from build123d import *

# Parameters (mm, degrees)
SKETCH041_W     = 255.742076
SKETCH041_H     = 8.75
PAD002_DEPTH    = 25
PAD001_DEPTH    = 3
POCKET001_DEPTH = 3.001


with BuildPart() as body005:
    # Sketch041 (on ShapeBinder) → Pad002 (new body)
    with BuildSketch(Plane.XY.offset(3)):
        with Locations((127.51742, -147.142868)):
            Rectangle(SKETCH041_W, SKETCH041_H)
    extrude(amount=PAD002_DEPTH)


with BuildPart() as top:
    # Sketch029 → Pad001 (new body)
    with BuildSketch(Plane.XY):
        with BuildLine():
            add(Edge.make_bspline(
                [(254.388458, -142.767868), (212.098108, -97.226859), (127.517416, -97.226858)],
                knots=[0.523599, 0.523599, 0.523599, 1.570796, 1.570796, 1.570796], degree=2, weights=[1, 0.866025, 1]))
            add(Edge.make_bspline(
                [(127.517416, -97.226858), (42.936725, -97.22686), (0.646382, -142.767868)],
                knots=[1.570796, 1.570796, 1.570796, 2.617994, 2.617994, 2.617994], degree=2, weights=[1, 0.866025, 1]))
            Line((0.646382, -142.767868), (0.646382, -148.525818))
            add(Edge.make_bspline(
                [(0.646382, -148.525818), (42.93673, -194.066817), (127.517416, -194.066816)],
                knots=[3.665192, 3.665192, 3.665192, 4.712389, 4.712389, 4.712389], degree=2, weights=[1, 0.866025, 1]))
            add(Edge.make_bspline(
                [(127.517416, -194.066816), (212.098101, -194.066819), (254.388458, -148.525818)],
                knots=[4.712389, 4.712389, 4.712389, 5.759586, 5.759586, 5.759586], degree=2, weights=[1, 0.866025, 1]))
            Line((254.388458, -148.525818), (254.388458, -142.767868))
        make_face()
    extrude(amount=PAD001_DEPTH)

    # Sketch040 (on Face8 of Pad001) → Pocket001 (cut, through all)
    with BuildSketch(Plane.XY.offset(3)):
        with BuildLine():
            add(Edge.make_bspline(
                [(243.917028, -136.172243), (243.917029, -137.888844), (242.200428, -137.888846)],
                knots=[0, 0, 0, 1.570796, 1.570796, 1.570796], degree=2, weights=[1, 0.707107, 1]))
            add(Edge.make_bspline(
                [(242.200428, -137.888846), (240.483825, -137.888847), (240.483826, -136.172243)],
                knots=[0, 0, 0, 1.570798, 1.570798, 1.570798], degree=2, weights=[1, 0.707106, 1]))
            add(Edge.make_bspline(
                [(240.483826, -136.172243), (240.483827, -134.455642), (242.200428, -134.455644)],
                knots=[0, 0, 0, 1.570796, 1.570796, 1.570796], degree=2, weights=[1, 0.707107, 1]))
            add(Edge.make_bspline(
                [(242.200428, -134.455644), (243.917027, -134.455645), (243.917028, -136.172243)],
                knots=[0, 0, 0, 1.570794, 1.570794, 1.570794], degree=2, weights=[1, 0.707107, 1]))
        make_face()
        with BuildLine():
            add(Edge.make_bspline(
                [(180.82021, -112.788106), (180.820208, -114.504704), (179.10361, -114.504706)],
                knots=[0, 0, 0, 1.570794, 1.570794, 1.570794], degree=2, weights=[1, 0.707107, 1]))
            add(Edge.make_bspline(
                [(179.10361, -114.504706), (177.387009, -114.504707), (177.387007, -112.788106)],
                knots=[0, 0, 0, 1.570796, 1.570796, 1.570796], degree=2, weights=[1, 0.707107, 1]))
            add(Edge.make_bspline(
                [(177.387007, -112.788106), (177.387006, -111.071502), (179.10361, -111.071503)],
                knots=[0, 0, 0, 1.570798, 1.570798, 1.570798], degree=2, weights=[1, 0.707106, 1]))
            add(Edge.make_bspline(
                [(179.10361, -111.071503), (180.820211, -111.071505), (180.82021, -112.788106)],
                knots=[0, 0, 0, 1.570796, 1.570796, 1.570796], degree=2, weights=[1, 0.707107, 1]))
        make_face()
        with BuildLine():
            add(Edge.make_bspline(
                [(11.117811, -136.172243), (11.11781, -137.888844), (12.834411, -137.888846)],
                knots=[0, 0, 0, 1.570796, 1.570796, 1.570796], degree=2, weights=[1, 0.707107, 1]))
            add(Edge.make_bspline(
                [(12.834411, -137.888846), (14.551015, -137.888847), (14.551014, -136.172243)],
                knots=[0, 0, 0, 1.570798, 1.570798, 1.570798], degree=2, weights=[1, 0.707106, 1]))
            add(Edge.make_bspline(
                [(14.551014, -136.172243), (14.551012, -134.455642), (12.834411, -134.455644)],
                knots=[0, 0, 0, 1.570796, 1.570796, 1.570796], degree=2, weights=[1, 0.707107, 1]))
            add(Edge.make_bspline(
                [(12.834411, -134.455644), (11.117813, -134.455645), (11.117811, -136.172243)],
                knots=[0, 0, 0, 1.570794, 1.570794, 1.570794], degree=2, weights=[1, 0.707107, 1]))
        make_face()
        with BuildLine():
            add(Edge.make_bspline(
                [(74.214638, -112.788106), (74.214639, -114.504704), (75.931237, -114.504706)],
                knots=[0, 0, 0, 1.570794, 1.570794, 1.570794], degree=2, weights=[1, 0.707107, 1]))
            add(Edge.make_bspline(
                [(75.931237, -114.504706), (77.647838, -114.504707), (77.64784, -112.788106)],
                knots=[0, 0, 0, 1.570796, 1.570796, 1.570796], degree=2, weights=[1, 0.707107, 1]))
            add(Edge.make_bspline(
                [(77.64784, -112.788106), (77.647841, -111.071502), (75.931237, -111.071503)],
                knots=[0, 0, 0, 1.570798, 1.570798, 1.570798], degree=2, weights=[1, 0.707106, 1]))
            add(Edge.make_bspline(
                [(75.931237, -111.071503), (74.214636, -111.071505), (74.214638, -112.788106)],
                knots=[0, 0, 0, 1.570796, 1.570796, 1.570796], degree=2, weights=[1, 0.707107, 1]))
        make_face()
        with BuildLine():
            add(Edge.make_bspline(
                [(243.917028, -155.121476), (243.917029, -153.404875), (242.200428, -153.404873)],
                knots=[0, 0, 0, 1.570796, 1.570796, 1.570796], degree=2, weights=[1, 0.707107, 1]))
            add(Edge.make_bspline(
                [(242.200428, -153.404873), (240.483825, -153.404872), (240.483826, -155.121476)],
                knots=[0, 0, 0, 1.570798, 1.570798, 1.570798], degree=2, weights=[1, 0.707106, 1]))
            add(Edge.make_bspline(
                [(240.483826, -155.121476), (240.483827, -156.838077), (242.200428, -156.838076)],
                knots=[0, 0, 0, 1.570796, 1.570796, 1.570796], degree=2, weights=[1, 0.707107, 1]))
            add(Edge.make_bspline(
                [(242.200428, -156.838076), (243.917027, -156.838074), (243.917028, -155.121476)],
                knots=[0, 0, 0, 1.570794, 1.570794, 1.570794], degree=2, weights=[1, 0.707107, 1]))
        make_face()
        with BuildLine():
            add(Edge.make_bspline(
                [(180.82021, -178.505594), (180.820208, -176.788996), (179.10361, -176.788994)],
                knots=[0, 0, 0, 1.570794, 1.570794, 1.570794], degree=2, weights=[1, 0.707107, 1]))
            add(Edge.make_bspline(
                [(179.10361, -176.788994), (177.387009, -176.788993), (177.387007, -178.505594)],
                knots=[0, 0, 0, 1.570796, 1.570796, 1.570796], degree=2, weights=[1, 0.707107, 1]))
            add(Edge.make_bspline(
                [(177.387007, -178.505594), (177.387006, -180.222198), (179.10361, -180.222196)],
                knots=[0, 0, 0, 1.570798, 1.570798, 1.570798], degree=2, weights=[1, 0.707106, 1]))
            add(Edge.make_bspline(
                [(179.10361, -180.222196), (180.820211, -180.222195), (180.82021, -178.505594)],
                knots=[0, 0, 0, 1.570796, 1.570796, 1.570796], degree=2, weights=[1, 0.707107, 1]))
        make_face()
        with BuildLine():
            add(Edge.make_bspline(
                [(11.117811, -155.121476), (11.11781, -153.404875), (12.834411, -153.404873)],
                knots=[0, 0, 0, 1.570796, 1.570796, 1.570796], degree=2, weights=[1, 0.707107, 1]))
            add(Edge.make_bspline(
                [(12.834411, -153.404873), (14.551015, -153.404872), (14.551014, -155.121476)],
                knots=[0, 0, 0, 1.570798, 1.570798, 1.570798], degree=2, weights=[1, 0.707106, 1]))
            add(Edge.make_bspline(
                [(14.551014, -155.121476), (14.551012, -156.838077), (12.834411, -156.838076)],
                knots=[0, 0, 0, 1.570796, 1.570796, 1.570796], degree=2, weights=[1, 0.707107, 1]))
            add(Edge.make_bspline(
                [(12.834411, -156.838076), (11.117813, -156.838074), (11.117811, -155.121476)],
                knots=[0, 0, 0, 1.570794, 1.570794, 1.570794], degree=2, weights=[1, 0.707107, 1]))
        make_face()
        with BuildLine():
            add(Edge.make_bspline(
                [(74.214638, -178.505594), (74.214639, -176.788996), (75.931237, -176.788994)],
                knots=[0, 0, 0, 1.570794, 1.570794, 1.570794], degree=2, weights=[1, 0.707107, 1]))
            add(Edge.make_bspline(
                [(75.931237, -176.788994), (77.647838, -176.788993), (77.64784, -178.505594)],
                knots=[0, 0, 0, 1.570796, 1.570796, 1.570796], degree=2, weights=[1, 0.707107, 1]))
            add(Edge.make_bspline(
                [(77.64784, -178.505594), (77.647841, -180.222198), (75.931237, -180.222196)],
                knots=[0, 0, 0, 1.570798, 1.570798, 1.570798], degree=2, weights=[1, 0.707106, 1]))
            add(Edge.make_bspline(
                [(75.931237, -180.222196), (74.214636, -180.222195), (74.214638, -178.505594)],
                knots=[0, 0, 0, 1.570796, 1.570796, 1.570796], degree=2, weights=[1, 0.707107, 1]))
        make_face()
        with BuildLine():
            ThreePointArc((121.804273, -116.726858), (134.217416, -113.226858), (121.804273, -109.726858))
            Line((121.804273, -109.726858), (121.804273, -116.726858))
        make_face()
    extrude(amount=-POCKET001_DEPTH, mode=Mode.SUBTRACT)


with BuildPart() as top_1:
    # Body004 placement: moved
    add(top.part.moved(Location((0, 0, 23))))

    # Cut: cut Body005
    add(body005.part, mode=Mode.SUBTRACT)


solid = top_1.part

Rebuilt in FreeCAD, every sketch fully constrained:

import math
import FreeCAD as App
import Part
import Sketcher

doc = App.newDocument("Part")
body = doc.addObject("PartDesign::Body", "Body")

# Sketch on XY plane
sketch1 = body.newObject("Sketcher::SketchObject", "Sketch")
sketch1.AttachmentSupport = (doc.getObject("XY_Plane"), [""])
sketch1.MapMode = "FlatFace"
sketch1.AttachmentOffset = App.Placement(App.Vector(0, 0, 3), App.Rotation())
sketch1.addGeometry([
    Part.LineSegment(App.Vector(-0.353618, -142.767868, 0), App.Vector(-0.353618, -151.517868, 0)),
    Part.LineSegment(App.Vector(-0.353618, -151.517868, 0), App.Vector(255.388458, -151.517868, 0)),
    Part.LineSegment(App.Vector(255.388458, -151.517868, 0), App.Vector(255.388458, -142.767868, 0)),
    Part.LineSegment(App.Vector(255.388458, -142.767868, 0), App.Vector(-0.353618, -142.767868, 0)),
], False)
sketch1.addConstraint([
    Sketcher.Constraint("Coincident", 0, 2, 1, 1),
    Sketcher.Constraint("Coincident", 1, 2, 2, 1),
    Sketcher.Constraint("Coincident", 2, 2, 3, 1),
    Sketcher.Constraint("Coincident", 3, 2, 0, 1),
    Sketcher.Constraint("Vertical", 0),
    Sketcher.Constraint("Horizontal", 1),
    Sketcher.Constraint("Vertical", 2),
    Sketcher.Constraint("Horizontal", 3),
    Sketcher.Constraint("DistanceY", 0, 2, 0, 1, 8.75),
    Sketcher.Constraint("DistanceX", 1, 1, 1, 2, 255.742076),
    Sketcher.Constraint("DistanceY", 0, 2, -1, 1, 151.517868),
    Sketcher.Constraint("DistanceX", -1, 1, 1, 2, 255.388458),
])
pad1 = body.newObject("PartDesign::Pad", "Pad")
pad1.Profile = sketch1
pad1.Length = 25
body2 = doc.addObject("PartDesign::Body", "Body001")

# Sketch on XY plane
sketch2 = body2.newObject("Sketcher::SketchObject", "Sketch001")
sketch2.AttachmentSupport = (doc.getObject("XY_Plane001"), [""])
sketch2.MapMode = "FlatFace"
sketch2.addGeometry([
    Part.BSplineCurve([App.Vector(254.388458, -142.767868, 0), App.Vector(212.098108, -97.226859, 0), App.Vector(127.517416, -97.226858, 0)], [3, 3], [0.523599, 1.570796], False, 2, [1, 0.866025, 1], False),  # 0
    Part.BSplineCurve([App.Vector(127.517416, -97.226858, 0), App.Vector(42.936725, -97.22686, 0), App.Vector(0.646382, -142.767868, 0)], [3, 3], [1.570796, 2.617994], False, 2, [1, 0.866025, 1], False),  # 1
    Part.LineSegment(App.Vector(0.646382, -142.767868, 0), App.Vector(0.646382, -148.525818, 0)),  # 2
    Part.BSplineCurve([App.Vector(0.646382, -148.525818, 0), App.Vector(42.93673, -194.066817, 0), App.Vector(127.517416, -194.066816, 0)], [3, 3], [3.665192, 4.712389], False, 2, [1, 0.866025, 1], False),  # 3
    Part.BSplineCurve([App.Vector(127.517416, -194.066816, 0), App.Vector(212.098101, -194.066819, 0), App.Vector(254.388458, -148.525818, 0)], [3, 3], [4.712389, 5.759586], False, 2, [1, 0.866025, 1], False),  # 4
    Part.LineSegment(App.Vector(254.388458, -148.525818, 0), App.Vector(254.388458, -142.767868, 0)),  # 5
], False)
sketch2.addConstraint([
    Sketcher.Constraint("Block", 0),
    Sketcher.Constraint("Block", 1),
    Sketcher.Constraint("Block", 3),
    Sketcher.Constraint("Block", 4),
    Sketcher.Constraint("Coincident", 1, 2, 2, 1),
    Sketcher.Constraint("Coincident", 2, 2, 3, 1),
    Sketcher.Constraint("Coincident", 4, 2, 5, 1),
    Sketcher.Constraint("Coincident", 5, 2, 0, 1),
])
pad2 = body2.newObject("PartDesign::Pad", "Pad001")
pad2.Profile = sketch2
pad2.Length = 3

# Sketch on XY plane
sketch3 = body2.newObject("Sketcher::SketchObject", "Sketch002")
sketch3.AttachmentSupport = (doc.getObject("XY_Plane001"), [""])
sketch3.MapMode = "FlatFace"
sketch3.AttachmentOffset = App.Placement(App.Vector(0, 0, 3), App.Rotation())
sketch3.addGeometry([
    Part.BSplineCurve([App.Vector(243.917028, -136.172243, 0), App.Vector(243.917029, -137.888844, 0), App.Vector(242.200428, -137.888846, 0)], [3, 3], [0, 1.570796], False, 2, [1, 0.707107, 1], False),  # 0
    Part.BSplineCurve([App.Vector(242.200428, -134.455644, 0), App.Vector(243.917027, -134.455645, 0), App.Vector(243.917028, -136.172243, 0)], [3, 3], [0, 1.570794], False, 2, [1, 0.707107, 1], False),  # 1
    Part.BSplineCurve([App.Vector(240.483826, -136.172243, 0), App.Vector(240.483827, -134.455642, 0), App.Vector(242.200428, -134.455644, 0)], [3, 3], [0, 1.570796], False, 2, [1, 0.707107, 1], False),  # 2
    Part.BSplineCurve([App.Vector(242.200428, -137.888846, 0), App.Vector(240.483825, -137.888847, 0), App.Vector(240.483826, -136.172243, 0)], [3, 3], [0, 1.570798], False, 2, [1, 0.707106, 1], False),  # 3
    Part.BSplineCurve([App.Vector(180.82021, -112.788106, 0), App.Vector(180.820208, -114.504704, 0), App.Vector(179.10361, -114.504706, 0)], [3, 3], [0, 1.570794], False, 2, [1, 0.707107, 1], False),  # 4
    Part.BSplineCurve([App.Vector(179.10361, -111.071503, 0), App.Vector(180.820211, -111.071505, 0), App.Vector(180.82021, -112.788106, 0)], [3, 3], [0, 1.570796], False, 2, [1, 0.707107, 1], False),  # 5
    Part.BSplineCurve([App.Vector(177.387007, -112.788106, 0), App.Vector(177.387006, -111.071502, 0), App.Vector(179.10361, -111.071503, 0)], [3, 3], [0, 1.570798], False, 2, [1, 0.707106, 1], False),  # 6
    Part.BSplineCurve([App.Vector(179.10361, -114.504706, 0), App.Vector(177.387009, -114.504707, 0), App.Vector(177.387007, -112.788106, 0)], [3, 3], [0, 1.570796], False, 2, [1, 0.707107, 1], False),  # 7
    Part.BSplineCurve([App.Vector(11.117811, -136.172243, 0), App.Vector(11.11781, -137.888844, 0), App.Vector(12.834411, -137.888846, 0)], [3, 3], [0, 1.570796], False, 2, [1, 0.707107, 1], False),  # 8
    Part.BSplineCurve([App.Vector(12.834411, -137.888846, 0), App.Vector(14.551015, -137.888847, 0), App.Vector(14.551014, -136.172243, 0)], [3, 3], [0, 1.570798], False, 2, [1, 0.707106, 1], False),  # 9
    Part.BSplineCurve([App.Vector(14.551014, -136.172243, 0), App.Vector(14.551012, -134.455642, 0), App.Vector(12.834411, -134.455644, 0)], [3, 3], [0, 1.570796], False, 2, [1, 0.707107, 1], False),  # 10
    Part.BSplineCurve([App.Vector(12.834411, -134.455644, 0), App.Vector(11.117813, -134.455645, 0), App.Vector(11.117811, -136.172243, 0)], [3, 3], [0, 1.570794], False, 2, [1, 0.707107, 1], False),  # 11
    Part.BSplineCurve([App.Vector(74.214638, -112.788106, 0), App.Vector(74.214639, -114.504704, 0), App.Vector(75.931237, -114.504706, 0)], [3, 3], [0, 1.570794], False, 2, [1, 0.707107, 1], False),  # 12
    Part.BSplineCurve([App.Vector(75.931237, -114.504706, 0), App.Vector(77.647838, -114.504707, 0), App.Vector(77.64784, -112.788106, 0)], [3, 3], [0, 1.570796], False, 2, [1, 0.707107, 1], False),  # 13
    Part.BSplineCurve([App.Vector(77.64784, -112.788106, 0), App.Vector(77.647841, -111.071502, 0), App.Vector(75.931237, -111.071503, 0)], [3, 3], [0, 1.570798], False, 2, [1, 0.707106, 1], False),  # 14
    Part.BSplineCurve([App.Vector(75.931237, -111.071503, 0), App.Vector(74.214636, -111.071505, 0), App.Vector(74.214638, -112.788106, 0)], [3, 3], [0, 1.570796], False, 2, [1, 0.707107, 1], False),  # 15
    Part.BSplineCurve([App.Vector(243.917028, -155.121476, 0), App.Vector(243.917029, -153.404875, 0), App.Vector(242.200428, -153.404873, 0)], [3, 3], [0, 1.570796], False, 2, [1, 0.707107, 1], False),  # 16
    Part.BSplineCurve([App.Vector(242.200428, -153.404873, 0), App.Vector(240.483825, -153.404872, 0), App.Vector(240.483826, -155.121476, 0)], [3, 3], [0, 1.570798], False, 2, [1, 0.707106, 1], False),  # 17
    Part.BSplineCurve([App.Vector(240.483826, -155.121476, 0), App.Vector(240.483827, -156.838077, 0), App.Vector(242.200428, -156.838076, 0)], [3, 3], [0, 1.570796], False, 2, [1, 0.707107, 1], False),  # 18
    Part.BSplineCurve([App.Vector(242.200428, -156.838076, 0), App.Vector(243.917027, -156.838074, 0), App.Vector(243.917028, -155.121476, 0)], [3, 3], [0, 1.570794], False, 2, [1, 0.707107, 1], False),  # 19
    Part.BSplineCurve([App.Vector(180.82021, -178.505594, 0), App.Vector(180.820208, -176.788996, 0), App.Vector(179.10361, -176.788994, 0)], [3, 3], [0, 1.570794], False, 2, [1, 0.707107, 1], False),  # 20
    Part.BSplineCurve([App.Vector(179.10361, -176.788994, 0), App.Vector(177.387009, -176.788993, 0), App.Vector(177.387007, -178.505594, 0)], [3, 3], [0, 1.570796], False, 2, [1, 0.707107, 1], False),  # 21
    Part.BSplineCurve([App.Vector(177.387007, -178.505594, 0), App.Vector(177.387006, -180.222198, 0), App.Vector(179.10361, -180.222196, 0)], [3, 3], [0, 1.570798], False, 2, [1, 0.707106, 1], False),  # 22
    Part.BSplineCurve([App.Vector(179.10361, -180.222196, 0), App.Vector(180.820211, -180.222195, 0), App.Vector(180.82021, -178.505594, 0)], [3, 3], [0, 1.570796], False, 2, [1, 0.707107, 1], False),  # 23
    Part.BSplineCurve([App.Vector(11.117811, -155.121476, 0), App.Vector(11.11781, -153.404875, 0), App.Vector(12.834411, -153.404873, 0)], [3, 3], [0, 1.570796], False, 2, [1, 0.707107, 1], False),  # 24
    Part.BSplineCurve([App.Vector(12.834411, -156.838076, 0), App.Vector(11.117813, -156.838074, 0), App.Vector(11.117811, -155.121476, 0)], [3, 3], [0, 1.570794], False, 2, [1, 0.707107, 1], False),  # 25
    Part.BSplineCurve([App.Vector(14.551014, -155.121476, 0), App.Vector(14.551012, -156.838077, 0), App.Vector(12.834411, -156.838076, 0)], [3, 3], [0, 1.570796], False, 2, [1, 0.707107, 1], False),  # 26
    Part.BSplineCurve([App.Vector(12.834411, -153.404873, 0), App.Vector(14.551015, -153.404872, 0), App.Vector(14.551014, -155.121476, 0)], [3, 3], [0, 1.570798], False, 2, [1, 0.707106, 1], False),  # 27
    Part.BSplineCurve([App.Vector(74.214638, -178.505594, 0), App.Vector(74.214639, -176.788996, 0), App.Vector(75.931237, -176.788994, 0)], [3, 3], [0, 1.570794], False, 2, [1, 0.707107, 1], False),  # 28
    Part.BSplineCurve([App.Vector(75.931237, -180.222196, 0), App.Vector(74.214636, -180.222195, 0), App.Vector(74.214638, -178.505594, 0)], [3, 3], [0, 1.570796], False, 2, [1, 0.707107, 1], False),  # 29
    Part.BSplineCurve([App.Vector(77.64784, -178.505594, 0), App.Vector(77.647841, -180.222198, 0), App.Vector(75.931237, -180.222196, 0)], [3, 3], [0, 1.570798], False, 2, [1, 0.707106, 1], False),  # 30
    Part.BSplineCurve([App.Vector(75.931237, -176.788994, 0), App.Vector(77.647838, -176.788993, 0), App.Vector(77.64784, -178.505594, 0)], [3, 3], [0, 1.570796], False, 2, [1, 0.707107, 1], False),  # 31
    Part.ArcOfCircle(Part.Circle(App.Vector(127.517416, -113.226858, 0), App.Vector(0, 0, 1), 6.7), math.radians(-148.507426), math.radians(148.507426)),  # 32
    Part.LineSegment(App.Vector(121.804273, -109.726858, 0), App.Vector(121.804273, -116.726858, 0)),  # 33
], False)
sketch3.addConstraint([
    Sketcher.Constraint("Block", 0),
    Sketcher.Constraint("Block", 1),
    Sketcher.Constraint("Block", 2),
    Sketcher.Constraint("Block", 3),
    Sketcher.Constraint("Block", 4),
    Sketcher.Constraint("Block", 5),
    Sketcher.Constraint("Block", 6),
    Sketcher.Constraint("Block", 7),
    Sketcher.Constraint("Block", 8),
    Sketcher.Constraint("Block", 9),
    Sketcher.Constraint("Block", 10),
    Sketcher.Constraint("Block", 11),
    Sketcher.Constraint("Block", 12),
    Sketcher.Constraint("Block", 13),
    Sketcher.Constraint("Block", 14),
    Sketcher.Constraint("Block", 15),
    Sketcher.Constraint("Block", 16),
    Sketcher.Constraint("Block", 17),
    Sketcher.Constraint("Block", 18),
    Sketcher.Constraint("Block", 19),
    Sketcher.Constraint("Block", 20),
    Sketcher.Constraint("Block", 21),
    Sketcher.Constraint("Block", 22),
    Sketcher.Constraint("Block", 23),
    Sketcher.Constraint("Block", 24),
    Sketcher.Constraint("Block", 25),
    Sketcher.Constraint("Block", 26),
    Sketcher.Constraint("Block", 27),
    Sketcher.Constraint("Block", 28),
    Sketcher.Constraint("Block", 29),
    Sketcher.Constraint("Block", 30),
    Sketcher.Constraint("Block", 31),
    Sketcher.Constraint("Coincident", 32, 1, 33, 2),
    Sketcher.Constraint("Coincident", 33, 1, 32, 2),
    Sketcher.Constraint("Vertical", 33),
    Sketcher.Constraint("Radius", 32, 6.7),
    Sketcher.Constraint("DistanceY", 33, 2, 33, 1, 7.0),
    Sketcher.Constraint("DistanceX", -1, 1, 32, 3, 127.517416),
    Sketcher.Constraint("DistanceY", 32, 3, -1, 1, 113.226858),
])
pocket1 = body2.newObject("PartDesign::Pocket", "Pocket")
pocket1.Profile = sketch3
pocket1.Type = "ThroughAll"
body3 = doc.addObject("PartDesign::Body", "Body002")
body3.AllowCompound = True
doc.recompute()

body2.Placement = App.Placement(App.Vector(0, 0, 23), App.Rotation(App.Vector(0, 0, 1), 0))
boolean = body3.newObject("PartDesign::Boolean", "Boolean")
boolean.Type = "Fuse"
boolean.addObjects([body2])
doc.recompute()

boolean2 = body3.newObject("PartDesign::Boolean", "Boolean001")
boolean2.Type = "Cut"
boolean2.addObjects([body])

doc.recompute()
